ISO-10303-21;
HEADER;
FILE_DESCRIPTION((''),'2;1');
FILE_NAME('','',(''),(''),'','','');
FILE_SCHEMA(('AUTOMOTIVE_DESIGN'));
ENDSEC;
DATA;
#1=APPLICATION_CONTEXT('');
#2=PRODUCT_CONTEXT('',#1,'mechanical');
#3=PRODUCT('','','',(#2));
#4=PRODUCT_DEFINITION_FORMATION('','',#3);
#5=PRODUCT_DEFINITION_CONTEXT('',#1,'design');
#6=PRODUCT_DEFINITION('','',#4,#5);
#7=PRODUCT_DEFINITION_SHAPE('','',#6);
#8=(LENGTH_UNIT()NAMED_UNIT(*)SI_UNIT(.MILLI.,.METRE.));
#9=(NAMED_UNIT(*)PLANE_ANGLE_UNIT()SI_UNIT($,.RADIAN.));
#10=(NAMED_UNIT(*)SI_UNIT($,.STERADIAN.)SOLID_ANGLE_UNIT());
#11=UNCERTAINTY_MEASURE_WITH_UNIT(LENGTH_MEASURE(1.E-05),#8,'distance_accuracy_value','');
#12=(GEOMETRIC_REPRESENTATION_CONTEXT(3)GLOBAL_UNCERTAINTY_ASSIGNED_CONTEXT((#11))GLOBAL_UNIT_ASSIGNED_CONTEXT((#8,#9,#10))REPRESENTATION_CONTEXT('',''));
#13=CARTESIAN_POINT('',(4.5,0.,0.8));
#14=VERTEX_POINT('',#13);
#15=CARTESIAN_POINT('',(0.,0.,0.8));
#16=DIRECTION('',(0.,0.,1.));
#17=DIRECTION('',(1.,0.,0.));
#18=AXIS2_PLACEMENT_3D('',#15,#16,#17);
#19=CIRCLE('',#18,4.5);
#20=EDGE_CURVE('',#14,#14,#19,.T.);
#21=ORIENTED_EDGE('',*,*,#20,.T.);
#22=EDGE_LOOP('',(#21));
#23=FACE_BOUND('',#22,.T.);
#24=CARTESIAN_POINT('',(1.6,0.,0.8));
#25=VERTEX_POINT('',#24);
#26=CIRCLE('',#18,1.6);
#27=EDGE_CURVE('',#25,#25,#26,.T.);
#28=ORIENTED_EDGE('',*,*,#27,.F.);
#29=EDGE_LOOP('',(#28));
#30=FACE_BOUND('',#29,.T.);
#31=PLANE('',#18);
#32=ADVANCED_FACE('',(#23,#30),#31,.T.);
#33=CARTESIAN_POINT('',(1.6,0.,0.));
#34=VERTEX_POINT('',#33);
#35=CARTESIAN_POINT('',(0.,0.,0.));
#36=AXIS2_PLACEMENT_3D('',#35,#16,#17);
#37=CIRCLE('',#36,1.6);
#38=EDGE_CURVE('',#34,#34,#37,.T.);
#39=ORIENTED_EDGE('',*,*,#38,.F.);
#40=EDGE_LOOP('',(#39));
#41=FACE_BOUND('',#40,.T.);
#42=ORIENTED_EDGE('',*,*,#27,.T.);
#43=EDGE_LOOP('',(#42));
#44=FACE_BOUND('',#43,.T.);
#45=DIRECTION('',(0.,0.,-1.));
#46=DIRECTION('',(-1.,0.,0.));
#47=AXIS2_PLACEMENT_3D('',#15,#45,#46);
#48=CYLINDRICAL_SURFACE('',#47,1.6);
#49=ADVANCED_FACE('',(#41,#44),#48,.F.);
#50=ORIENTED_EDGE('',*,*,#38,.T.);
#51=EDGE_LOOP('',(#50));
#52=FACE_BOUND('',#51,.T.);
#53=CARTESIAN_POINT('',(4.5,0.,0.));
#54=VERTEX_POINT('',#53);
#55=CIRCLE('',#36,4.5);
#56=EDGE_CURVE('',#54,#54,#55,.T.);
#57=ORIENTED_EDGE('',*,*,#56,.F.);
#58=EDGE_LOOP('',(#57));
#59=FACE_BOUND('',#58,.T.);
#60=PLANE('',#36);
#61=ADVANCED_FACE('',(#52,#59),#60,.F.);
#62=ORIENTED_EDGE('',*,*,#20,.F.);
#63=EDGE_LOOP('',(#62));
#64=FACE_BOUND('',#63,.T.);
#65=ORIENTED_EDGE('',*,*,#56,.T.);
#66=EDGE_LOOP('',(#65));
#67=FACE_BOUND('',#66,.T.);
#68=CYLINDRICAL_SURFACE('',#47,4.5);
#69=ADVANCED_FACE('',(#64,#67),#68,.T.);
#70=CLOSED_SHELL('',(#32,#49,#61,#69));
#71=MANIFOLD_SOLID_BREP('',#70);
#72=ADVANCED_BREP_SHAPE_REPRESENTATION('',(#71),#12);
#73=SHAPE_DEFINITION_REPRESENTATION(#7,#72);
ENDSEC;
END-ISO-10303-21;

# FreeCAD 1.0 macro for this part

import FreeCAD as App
import Part
import Sketcher

V = App.Vector
Q = App.Units.Quantity

doc = App.newDocument("Part")
body = doc.addObject("PartDesign::Body", "Body")

# Sketch on XY plane
sketch1 = doc.addObject("Sketcher::SketchObject", "Sketch")
body.addObject(sketch1)
sketch1.AttachmentSupport = (doc.XY_Plane, [""])
sketch1.MapMode = "FlatFace"
sketch1.addGeometry([
    Part.Circle(V(0, 0, 0), V(0, 0, 1), 4.5),
    Part.Circle(V(0, 0, 0), V(0, 0, 1), 1.6),
], False)
sketch1.addConstraint([
    Sketcher.Constraint("Coincident", 0, 3, -1, 1),
    Sketcher.Constraint("Coincident", 1, 3, -1, 1),
    Sketcher.Constraint("Diameter", 0, Q("9 mm")),
    Sketcher.Constraint("Diameter", 1, Q("3.2 mm")),
])
pad1 = doc.addObject("PartDesign::Pad", "Pad")
body.addObject(pad1)
pad1.Profile = sketch1
pad1.Length = 0.8

doc.recompute()
